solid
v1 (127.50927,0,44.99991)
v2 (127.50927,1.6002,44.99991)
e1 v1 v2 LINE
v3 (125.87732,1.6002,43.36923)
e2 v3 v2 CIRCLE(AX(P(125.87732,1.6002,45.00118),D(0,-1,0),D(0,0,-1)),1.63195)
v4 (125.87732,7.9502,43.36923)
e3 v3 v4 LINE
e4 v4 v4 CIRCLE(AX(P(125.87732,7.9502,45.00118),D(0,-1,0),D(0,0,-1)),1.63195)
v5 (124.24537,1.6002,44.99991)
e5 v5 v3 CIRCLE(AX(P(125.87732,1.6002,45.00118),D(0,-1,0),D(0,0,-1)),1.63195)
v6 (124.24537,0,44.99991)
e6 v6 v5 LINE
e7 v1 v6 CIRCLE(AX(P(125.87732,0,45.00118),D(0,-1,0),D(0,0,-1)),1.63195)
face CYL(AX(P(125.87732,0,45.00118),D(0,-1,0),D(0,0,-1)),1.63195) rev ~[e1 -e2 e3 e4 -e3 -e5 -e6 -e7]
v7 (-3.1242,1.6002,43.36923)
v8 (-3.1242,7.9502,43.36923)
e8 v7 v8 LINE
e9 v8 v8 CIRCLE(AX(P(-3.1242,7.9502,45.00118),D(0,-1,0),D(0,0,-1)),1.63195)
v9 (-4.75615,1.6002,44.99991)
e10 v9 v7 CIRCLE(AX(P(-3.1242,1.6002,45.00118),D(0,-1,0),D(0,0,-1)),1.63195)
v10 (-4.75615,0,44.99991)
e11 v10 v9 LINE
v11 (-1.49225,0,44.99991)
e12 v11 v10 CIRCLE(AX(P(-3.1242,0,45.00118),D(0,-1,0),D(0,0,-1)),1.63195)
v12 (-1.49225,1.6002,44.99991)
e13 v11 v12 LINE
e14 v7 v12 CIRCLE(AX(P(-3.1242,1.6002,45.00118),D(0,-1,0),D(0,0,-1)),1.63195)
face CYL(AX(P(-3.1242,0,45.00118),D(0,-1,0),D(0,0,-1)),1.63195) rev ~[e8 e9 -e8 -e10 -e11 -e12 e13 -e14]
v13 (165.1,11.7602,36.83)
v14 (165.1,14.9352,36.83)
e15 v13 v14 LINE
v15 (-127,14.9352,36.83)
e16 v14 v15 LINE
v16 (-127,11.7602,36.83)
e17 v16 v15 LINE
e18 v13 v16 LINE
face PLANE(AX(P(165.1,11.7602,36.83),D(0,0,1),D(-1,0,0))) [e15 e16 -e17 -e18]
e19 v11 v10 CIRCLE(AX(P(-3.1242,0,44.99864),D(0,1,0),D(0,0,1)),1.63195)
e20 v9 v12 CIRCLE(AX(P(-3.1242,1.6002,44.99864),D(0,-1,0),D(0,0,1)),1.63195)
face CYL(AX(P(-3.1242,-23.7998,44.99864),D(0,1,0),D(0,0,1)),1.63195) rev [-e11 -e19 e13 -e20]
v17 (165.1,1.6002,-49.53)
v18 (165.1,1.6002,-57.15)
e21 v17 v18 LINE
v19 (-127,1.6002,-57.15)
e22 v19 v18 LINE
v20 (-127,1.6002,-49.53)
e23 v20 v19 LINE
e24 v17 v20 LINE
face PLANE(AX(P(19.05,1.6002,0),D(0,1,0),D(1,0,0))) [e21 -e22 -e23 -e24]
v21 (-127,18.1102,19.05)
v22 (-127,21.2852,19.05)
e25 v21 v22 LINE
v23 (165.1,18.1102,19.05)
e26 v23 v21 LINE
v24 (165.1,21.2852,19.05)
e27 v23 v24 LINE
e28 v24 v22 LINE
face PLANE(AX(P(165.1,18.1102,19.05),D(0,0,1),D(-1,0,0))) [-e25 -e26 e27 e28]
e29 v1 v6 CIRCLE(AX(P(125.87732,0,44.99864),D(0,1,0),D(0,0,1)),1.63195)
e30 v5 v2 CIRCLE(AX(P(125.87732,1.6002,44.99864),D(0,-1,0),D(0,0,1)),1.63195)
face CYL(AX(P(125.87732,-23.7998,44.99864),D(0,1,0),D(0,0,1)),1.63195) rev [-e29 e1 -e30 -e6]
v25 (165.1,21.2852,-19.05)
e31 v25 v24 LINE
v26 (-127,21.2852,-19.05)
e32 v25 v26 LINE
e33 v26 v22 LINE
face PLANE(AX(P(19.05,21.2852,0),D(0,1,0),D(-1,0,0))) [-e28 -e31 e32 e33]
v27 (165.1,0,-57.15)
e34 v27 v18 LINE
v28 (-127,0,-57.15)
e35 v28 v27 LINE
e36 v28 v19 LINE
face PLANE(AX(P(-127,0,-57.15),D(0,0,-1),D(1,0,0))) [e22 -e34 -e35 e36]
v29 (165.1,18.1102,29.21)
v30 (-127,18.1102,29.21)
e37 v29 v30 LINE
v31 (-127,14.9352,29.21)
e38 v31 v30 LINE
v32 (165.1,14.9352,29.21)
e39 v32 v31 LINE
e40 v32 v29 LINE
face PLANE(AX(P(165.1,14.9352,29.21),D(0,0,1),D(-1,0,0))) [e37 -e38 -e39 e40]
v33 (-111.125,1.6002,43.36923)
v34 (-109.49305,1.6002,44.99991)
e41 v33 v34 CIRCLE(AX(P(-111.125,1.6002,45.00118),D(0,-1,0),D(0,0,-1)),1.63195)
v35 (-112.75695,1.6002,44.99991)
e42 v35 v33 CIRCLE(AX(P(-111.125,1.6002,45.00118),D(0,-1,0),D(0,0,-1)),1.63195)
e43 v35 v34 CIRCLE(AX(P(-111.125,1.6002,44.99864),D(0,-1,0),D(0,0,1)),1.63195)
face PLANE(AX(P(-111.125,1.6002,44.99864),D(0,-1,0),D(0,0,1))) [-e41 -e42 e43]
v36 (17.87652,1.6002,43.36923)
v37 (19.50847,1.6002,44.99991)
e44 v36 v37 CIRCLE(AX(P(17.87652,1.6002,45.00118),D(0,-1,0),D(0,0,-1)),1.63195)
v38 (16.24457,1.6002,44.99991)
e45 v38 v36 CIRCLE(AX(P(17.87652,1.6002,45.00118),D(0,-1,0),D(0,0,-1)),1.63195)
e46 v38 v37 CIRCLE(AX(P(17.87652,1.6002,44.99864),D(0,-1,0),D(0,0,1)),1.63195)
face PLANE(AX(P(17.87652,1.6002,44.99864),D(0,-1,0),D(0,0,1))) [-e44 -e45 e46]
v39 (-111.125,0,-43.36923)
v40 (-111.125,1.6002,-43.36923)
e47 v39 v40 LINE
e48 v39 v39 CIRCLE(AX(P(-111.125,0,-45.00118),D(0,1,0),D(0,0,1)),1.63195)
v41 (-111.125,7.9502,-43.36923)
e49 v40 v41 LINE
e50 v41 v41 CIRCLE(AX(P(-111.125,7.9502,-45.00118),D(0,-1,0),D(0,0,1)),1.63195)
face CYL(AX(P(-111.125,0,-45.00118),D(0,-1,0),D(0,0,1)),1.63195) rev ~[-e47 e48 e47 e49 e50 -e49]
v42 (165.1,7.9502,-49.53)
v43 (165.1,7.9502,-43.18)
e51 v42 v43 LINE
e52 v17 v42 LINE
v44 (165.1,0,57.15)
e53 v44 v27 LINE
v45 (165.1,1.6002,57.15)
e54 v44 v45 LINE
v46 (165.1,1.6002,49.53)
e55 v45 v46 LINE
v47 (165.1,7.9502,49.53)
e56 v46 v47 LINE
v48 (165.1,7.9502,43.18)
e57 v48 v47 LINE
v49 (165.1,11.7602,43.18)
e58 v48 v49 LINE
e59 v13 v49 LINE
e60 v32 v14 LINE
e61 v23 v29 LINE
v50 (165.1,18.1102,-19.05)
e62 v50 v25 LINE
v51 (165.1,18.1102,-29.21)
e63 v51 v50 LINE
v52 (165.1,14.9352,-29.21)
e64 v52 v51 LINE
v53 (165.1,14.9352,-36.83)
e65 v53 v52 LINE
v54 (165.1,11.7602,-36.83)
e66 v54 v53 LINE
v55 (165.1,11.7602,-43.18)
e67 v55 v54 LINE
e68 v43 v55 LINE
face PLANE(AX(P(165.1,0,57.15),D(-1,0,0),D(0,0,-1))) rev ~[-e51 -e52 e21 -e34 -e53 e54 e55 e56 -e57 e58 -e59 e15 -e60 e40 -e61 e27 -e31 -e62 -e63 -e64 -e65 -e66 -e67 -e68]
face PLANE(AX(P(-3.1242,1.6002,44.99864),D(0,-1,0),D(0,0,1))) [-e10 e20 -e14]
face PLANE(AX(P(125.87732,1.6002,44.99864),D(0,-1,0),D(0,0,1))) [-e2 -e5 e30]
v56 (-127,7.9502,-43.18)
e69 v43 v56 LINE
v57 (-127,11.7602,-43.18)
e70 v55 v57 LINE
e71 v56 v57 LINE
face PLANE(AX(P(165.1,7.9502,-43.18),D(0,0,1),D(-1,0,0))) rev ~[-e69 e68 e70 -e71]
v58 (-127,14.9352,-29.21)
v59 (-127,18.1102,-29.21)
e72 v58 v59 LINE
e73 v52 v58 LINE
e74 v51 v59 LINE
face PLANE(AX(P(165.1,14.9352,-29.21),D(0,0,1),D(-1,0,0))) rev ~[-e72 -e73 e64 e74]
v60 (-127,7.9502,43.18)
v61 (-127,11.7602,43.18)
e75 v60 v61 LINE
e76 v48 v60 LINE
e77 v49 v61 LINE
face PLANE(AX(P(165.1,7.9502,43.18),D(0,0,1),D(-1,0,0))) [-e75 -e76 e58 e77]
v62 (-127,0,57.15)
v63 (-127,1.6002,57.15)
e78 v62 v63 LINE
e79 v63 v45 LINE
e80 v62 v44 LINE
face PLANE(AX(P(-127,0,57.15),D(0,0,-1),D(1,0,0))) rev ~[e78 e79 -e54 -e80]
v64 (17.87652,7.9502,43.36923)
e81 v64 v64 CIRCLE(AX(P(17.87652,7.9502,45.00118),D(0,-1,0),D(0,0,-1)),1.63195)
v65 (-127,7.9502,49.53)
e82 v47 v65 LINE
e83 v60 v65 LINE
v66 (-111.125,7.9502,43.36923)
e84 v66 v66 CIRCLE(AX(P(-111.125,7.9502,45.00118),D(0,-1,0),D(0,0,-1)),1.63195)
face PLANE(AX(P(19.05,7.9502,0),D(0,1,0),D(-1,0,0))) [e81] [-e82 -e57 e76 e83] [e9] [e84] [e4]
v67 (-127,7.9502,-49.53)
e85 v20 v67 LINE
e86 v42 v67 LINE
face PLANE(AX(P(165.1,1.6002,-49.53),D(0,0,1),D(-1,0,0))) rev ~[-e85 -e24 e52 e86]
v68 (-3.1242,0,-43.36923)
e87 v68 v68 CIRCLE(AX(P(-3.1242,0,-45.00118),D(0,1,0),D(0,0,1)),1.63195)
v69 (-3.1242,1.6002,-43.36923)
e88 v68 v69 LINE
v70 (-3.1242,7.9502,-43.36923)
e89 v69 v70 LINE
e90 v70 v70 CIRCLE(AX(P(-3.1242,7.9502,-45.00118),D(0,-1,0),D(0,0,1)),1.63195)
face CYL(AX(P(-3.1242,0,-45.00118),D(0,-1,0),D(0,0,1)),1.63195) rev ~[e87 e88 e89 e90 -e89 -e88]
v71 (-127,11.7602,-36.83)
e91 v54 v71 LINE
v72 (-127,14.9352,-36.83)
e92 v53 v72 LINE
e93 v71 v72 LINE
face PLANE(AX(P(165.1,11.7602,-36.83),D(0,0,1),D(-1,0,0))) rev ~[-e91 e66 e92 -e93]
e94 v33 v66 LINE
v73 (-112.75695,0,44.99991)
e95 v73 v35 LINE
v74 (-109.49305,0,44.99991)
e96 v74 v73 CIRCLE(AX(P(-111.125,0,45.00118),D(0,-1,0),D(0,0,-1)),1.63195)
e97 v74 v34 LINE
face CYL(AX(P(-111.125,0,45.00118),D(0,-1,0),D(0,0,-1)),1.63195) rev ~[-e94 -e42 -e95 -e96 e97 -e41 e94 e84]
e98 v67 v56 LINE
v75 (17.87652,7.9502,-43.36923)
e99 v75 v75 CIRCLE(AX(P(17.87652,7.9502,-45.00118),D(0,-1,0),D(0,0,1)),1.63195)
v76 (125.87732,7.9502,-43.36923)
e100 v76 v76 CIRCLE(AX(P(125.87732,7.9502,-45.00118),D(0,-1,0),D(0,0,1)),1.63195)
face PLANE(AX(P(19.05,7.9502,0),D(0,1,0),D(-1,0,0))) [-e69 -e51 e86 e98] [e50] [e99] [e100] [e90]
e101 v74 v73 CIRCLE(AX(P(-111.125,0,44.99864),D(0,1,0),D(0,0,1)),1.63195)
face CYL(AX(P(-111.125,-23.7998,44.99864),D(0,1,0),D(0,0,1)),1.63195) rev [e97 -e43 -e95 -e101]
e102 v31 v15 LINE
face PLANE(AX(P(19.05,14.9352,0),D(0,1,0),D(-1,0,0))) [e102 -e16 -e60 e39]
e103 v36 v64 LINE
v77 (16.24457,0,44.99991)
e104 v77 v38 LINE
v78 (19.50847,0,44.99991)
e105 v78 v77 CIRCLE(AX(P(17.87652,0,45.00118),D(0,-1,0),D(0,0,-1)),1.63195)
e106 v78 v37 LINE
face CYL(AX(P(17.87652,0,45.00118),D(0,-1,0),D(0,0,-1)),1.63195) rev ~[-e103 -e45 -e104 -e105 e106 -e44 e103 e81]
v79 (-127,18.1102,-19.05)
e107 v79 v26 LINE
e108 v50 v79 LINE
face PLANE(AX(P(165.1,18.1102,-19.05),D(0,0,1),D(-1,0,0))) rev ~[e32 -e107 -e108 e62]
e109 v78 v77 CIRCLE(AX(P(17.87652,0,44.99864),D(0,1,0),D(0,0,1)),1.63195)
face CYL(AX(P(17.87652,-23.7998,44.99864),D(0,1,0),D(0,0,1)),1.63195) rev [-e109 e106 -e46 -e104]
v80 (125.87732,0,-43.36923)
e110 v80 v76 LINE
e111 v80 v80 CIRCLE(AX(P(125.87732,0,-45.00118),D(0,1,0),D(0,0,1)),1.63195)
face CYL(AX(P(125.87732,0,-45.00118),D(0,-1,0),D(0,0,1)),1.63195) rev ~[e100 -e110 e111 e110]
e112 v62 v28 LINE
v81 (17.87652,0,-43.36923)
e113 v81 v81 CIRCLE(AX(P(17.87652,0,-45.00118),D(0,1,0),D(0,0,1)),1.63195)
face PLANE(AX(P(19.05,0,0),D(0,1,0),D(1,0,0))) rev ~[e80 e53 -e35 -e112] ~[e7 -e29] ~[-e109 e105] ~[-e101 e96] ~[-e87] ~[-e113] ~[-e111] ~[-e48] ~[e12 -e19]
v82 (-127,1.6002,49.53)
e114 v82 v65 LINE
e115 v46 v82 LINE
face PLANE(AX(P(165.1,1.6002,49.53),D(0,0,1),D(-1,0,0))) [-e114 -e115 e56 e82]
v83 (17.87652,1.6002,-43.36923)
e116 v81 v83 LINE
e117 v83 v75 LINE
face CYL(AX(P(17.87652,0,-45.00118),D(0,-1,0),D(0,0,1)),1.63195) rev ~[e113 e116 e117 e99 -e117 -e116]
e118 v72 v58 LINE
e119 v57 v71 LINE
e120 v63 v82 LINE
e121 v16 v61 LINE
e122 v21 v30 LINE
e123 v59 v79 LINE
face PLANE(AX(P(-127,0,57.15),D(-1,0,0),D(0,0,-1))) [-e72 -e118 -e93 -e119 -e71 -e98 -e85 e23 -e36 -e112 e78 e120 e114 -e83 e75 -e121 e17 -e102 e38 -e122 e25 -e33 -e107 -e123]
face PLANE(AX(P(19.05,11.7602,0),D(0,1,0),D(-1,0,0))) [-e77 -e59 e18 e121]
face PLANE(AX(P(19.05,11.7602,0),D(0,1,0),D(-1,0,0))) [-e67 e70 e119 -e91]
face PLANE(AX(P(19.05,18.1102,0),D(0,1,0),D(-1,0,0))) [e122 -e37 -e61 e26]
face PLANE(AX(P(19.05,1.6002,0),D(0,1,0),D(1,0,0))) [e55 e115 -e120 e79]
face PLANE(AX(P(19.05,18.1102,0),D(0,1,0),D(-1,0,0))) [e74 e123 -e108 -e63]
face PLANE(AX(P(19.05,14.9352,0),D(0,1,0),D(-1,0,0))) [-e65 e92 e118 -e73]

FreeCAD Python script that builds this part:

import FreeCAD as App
import Part
import Sketcher
from FreeCAD import Vector
Q = App.Units.Quantity


def add_polygon(sketch, points):
    """Adds a closed chain of lines whose ends are joined by coincident constraints."""
    first, n = sketch.GeometryCount, len(points)
    for a, b in zip(points, points[1:] + points[:1]):
        sketch.addGeometry(Part.LineSegment(App.Vector(*a, 0), App.Vector(*b, 0)), False)
    for i in range(n):
        sketch.addConstraint(Sketcher.Constraint("Coincident", first + i, 2, first + (i + 1) % n, 1))

doc = App.newDocument("Part")
body = doc.addObject("PartDesign::Body", "Body")

sketch1 = doc.addObject("Sketcher::SketchObject", "Sketch")
body.addObject(sketch1)
sketch1.AttachmentSupport = (doc.XZ_Plane, [""])
sketch1.MapMode = "FlatFace"
add_polygon(sketch1, [(-127, -57), (-127, 57), (165, 57), (165, -57)])
sketch1.addConstraint(Sketcher.Constraint("Vertical", 0))
sketch1.addConstraint(Sketcher.Constraint("Horizontal", 1))
sketch1.addConstraint(Sketcher.Constraint("Vertical", 2))
sketch1.addConstraint(Sketcher.Constraint("Horizontal", 3))
sketch1.addConstraint(Sketcher.Constraint("DistanceX", 1, 1, 1, 2, Q("11.5 in")))
sketch1.addConstraint(Sketcher.Constraint("DistanceY", 0, 1, 0, 2, Q("4.5 in")))
sketch1.addConstraint(Sketcher.Constraint("DistanceX", 0, 2, -1, 1, Q("5 in")))
sketch1.addConstraint(Sketcher.Constraint("DistanceY", -1, 1, 0, 2, Q("2.25 in")))
pad1 = doc.addObject("PartDesign::Pad", "Pad")
body.addObject(pad1)
pad1.Profile = sketch1
pad1.Length = Q("0.063 in")
pad1.Reversed = True

sketch2 = doc.addObject("Sketcher::SketchObject", "Sketch001")
body.addObject(sketch2)
sketch2.AttachmentSupport = (doc.XZ_Plane, [""])
sketch2.MapMode = "FlatFace"
sketch2.AttachmentOffset = App.Placement(Vector(0, 0, -0.063 * 25.4), App.Rotation())
add_polygon(sketch2, [(165, 50), (165, -50), (-127, -50), (-127, 50)])
sketch2.addConstraint(Sketcher.Constraint("Vertical", 0))
sketch2.addConstraint(Sketcher.Constraint("Horizontal", 1))
sketch2.addConstraint(Sketcher.Constraint("Vertical", 2))
sketch2.addConstraint(Sketcher.Constraint("Horizontal", 3))
sketch2.addConstraint(Sketcher.Constraint("DistanceX", 1, 2, 1, 1, Q("11.5 in")))
sketch2.addConstraint(Sketcher.Constraint("DistanceY", 0, 2, 0, 1, Q("3.9 in")))
sketch2.addConstraint(Sketcher.Constraint("DistanceX", 1, 2, -1, 1, Q("5 in")))
sketch2.addConstraint(Sketcher.Constraint("DistanceY", 0, 2, -1, 1, Q("1.95 in")))
pad2 = doc.addObject("PartDesign::Pad", "Pad001")
body.addObject(pad2)
pad2.Profile = sketch2
pad2.Length = Q("0.25 in")
pad2.Reversed = True

sketch3 = doc.addObject("Sketcher::SketchObject", "Sketch002")
body.addObject(sketch3)
sketch3.AttachmentSupport = (doc.YZ_Plane, [""])
sketch3.MapMode = "FlatFace"
sketch3.AttachmentOffset = App.Placement(Vector(0, 0, 4.9558 * 25.4), App.Rotation())
add_polygon(sketch3, [(-24.8, 45), (1.6, 45), (1.6, 46.6), (-23.8, 46.6)])
sketch3.addGeometry(Part.LineSegment(Vector(1.6, 45, 0), Vector(-24.8, 45, 0)), True)
sketch3.addConstraint(Sketcher.Constraint("Horizontal", 0))
sketch3.addConstraint(Sketcher.Constraint("Vertical", 1))
sketch3.addConstraint(Sketcher.Constraint("Horizontal", 2))
sketch3.addConstraint(Sketcher.Constraint("Horizontal", 4))
sketch3.addConstraint(Sketcher.Constraint("Coincident", 4, 1, 0, 2))
sketch3.addConstraint(Sketcher.Constraint("Equal", 0, 4))
sketch3.addConstraint(Sketcher.Constraint("DistanceX", 2, 2, 2, 1, Q("1 in")))
sketch3.addConstraint(Sketcher.Constraint("Angle", 3, Q("-121 deg")))
sketch3.addConstraint(Sketcher.Constraint("DistanceX", -1, 1, 0, 2, Q("0.063 in")))
sketch3.addConstraint(Sketcher.Constraint("DistanceY", -1, 1, 0, 2, Q("1.7716 in")))
sketch3.addConstraint(Sketcher.Constraint("DistanceY", 1, 1, 1, 2, 1.63195))
groove = doc.addObject("PartDesign::Groove", "Groove")
body.addObject(groove)
groove.Profile = sketch3
groove.ReferenceAxis = (sketch3, ["Axis0"])
groove.Angle = 360
doc.recompute()

linearpattern = doc.addObject("PartDesign::LinearPattern", "LinearPattern")
body.addObject(linearpattern)
linearpattern.Originals = [groove]
linearpattern.Direction = (doc.X_Axis, [""])
linearpattern.Mode = "offset"
linearpattern.Offset = Q("4.252 in")
linearpattern.Occurrences = 2
linearpattern.Reversed = True
body.Tip = linearpattern
doc.recompute()

datumline = doc.addObject("PartDesign::Line", "DatumLine")
body.addObject(datumline)
datumline.Placement = App.Placement(Vector(0, 0, 0), App.Rotation(Vector(0, 0, 1), Vector(-0.768224241, 0, -0.640180845)))
linearpattern2 = doc.addObject("PartDesign::LinearPattern", "LinearPattern001")
body.addObject(linearpattern2)
linearpattern2.Originals = [groove]
linearpattern2.Direction = (datumline, [""])
linearpattern2.Mode = "offset"
linearpattern2.Offset = 140.584994
linearpattern2.Occurrences = 2
body.Tip = linearpattern2
doc.recompute()

linearpattern3 = doc.addObject("PartDesign::LinearPattern", "LinearPattern002")
body.addObject(linearpattern3)
linearpattern3.Originals = [groove]
linearpattern3.Direction = (doc.Z_Axis, [""])
linearpattern3.Mode = "offset"
linearpattern3.Offset = Q("3.5433 in")
linearpattern3.Occurrences = 2
linearpattern3.Reversed = True
body.Tip = linearpattern3
doc.recompute()

datumline2 = doc.addObject("PartDesign::Line", "DatumLine001")
body.addObject(datumline2)
datumline2.Placement = App.Placement(Vector(0, 0, 0), App.Rotation(Vector(0, 0, 1), Vector(-0.934863535, 0, -0.355007284)))
linearpattern4 = doc.addObject("PartDesign::LinearPattern", "LinearPattern003")
body.addObject(linearpattern4)
linearpattern4.Originals = [groove]
linearpattern4.Direction = (datumline2, [""])
linearpattern4.Mode = "offset"
linearpattern4.Offset = 253.515418
linearpattern4.Occurrences = 2
body.Tip = linearpattern4
doc.recompute()

datumline3 = doc.addObject("PartDesign::Line", "DatumLine002")
body.addObject(datumline3)
datumline3.Placement = App.Placement(Vector(0, 0, 0), App.Rotation(Vector(0, 0, 1), Vector(-0.820130655, 0, -0.572176292)))
linearpattern5 = doc.addObject("PartDesign::LinearPattern", "LinearPattern004")
body.addObject(linearpattern5)
linearpattern5.Originals = [groove]
linearpattern5.Direction = (datumline3, [""])
linearpattern5.Mode = "offset"
linearpattern5.Offset = 157.293864
linearpattern5.Occurrences = 2
body.Tip = linearpattern5
doc.recompute()

linearpattern6 = doc.addObject("PartDesign::LinearPattern", "LinearPattern005")
body.addObject(linearpattern6)
linearpattern6.Originals = [groove]
linearpattern6.Direction = (doc.X_Axis, [""])
linearpattern6.Mode = "offset"
linearpattern6.Offset = Q("5.0788 in")
linearpattern6.Occurrences = 2
linearpattern6.Reversed = True
body.Tip = linearpattern6
doc.recompute()

linearpattern7 = doc.addObject("PartDesign::LinearPattern", "LinearPattern006")
body.addObject(linearpattern7)
linearpattern7.Originals = [groove]
linearpattern7.Direction = (doc.X_Axis, [""])
linearpattern7.Mode = "offset"
linearpattern7.Offset = Q("9.3308 in")
linearpattern7.Occurrences = 2
linearpattern7.Reversed = True
body.Tip = linearpattern7

sketch4 = doc.addObject("Sketcher::SketchObject", "Sketch003")
body.addObject(sketch4)
sketch4.AttachmentSupport = (doc.XZ_Plane, [""])
sketch4.MapMode = "FlatFace"
sketch4.AttachmentOffset = App.Placement(Vector(0, 0, -0.313 * 25.4), App.Rotation())
add_polygon(sketch4, [(165, 43), (165, -43), (-127, -43), (-127, 43)])
sketch4.addConstraint(Sketcher.Constraint("Vertical", 0))
sketch4.addConstraint(Sketcher.Constraint("Horizontal", 1))
sketch4.addConstraint(Sketcher.Constraint("Vertical", 2))
sketch4.addConstraint(Sketcher.Constraint("Horizontal", 3))
sketch4.addConstraint(Sketcher.Constraint("DistanceX", 1, 2, 1, 1, Q("11.5 in")))
sketch4.addConstraint(Sketcher.Constraint("DistanceY", 0, 2, 0, 1, Q("3.4 in")))
sketch4.addConstraint(Sketcher.Constraint("DistanceX", 1, 2, -1, 1, Q("5 in")))
sketch4.addConstraint(Sketcher.Constraint("DistanceY", 0, 2, -1, 1, Q("1.7 in")))
pad3 = doc.addObject("PartDesign::Pad", "Pad002")
body.addObject(pad3)
pad3.Profile = sketch4
pad3.Length = Q("0.15 in")
pad3.Reversed = True

sketch5 = doc.addObject("Sketcher::SketchObject", "Sketch004")
body.addObject(sketch5)
sketch5.AttachmentSupport = (doc.XZ_Plane, [""])
sketch5.MapMode = "FlatFace"
sketch5.AttachmentOffset = App.Placement(Vector(0, 0, -0.463 * 25.4), App.Rotation())
add_polygon(sketch5, [(165, 37), (165, -37), (-127, -37), (-127, 37)])
sketch5.addConstraint(Sketcher.Constraint("Vertical", 0))
sketch5.addConstraint(Sketcher.Constraint("Horizontal", 1))
sketch5.addConstraint(Sketcher.Constraint("Vertical", 2))
sketch5.addConstraint(Sketcher.Constraint("Horizontal", 3))
sketch5.addConstraint(Sketcher.Constraint("DistanceX", 1, 2, 1, 1, Q("11.5 in")))
sketch5.addConstraint(Sketcher.Constraint("DistanceY", 0, 2, 0, 1, Q("2.9 in")))
sketch5.addConstraint(Sketcher.Constraint("DistanceX", 1, 2, -1, 1, Q("5 in")))
sketch5.addConstraint(Sketcher.Constraint("DistanceY", 0, 2, -1, 1, Q("1.45 in")))
pad4 = doc.addObject("PartDesign::Pad", "Pad003")
body.addObject(pad4)
pad4.Profile = sketch5
pad4.Length = Q("0.125 in")
pad4.Reversed = True

sketch6 = doc.addObject("Sketcher::SketchObject", "Sketch005")
body.addObject(sketch6)
sketch6.AttachmentSupport = (doc.XZ_Plane, [""])
sketch6.MapMode = "FlatFace"
sketch6.AttachmentOffset = App.Placement(Vector(0, 0, -0.588 * 25.4), App.Rotation())
add_polygon(sketch6, [(165, 29), (165, -29), (-127, -29), (-127, 29)])
sketch6.addConstraint(Sketcher.Constraint("Vertical", 0))
sketch6.addConstraint(Sketcher.Constraint("Horizontal", 1))
sketch6.addConstraint(Sketcher.Constraint("Vertical", 2))
sketch6.addConstraint(Sketcher.Constraint("Horizontal", 3))
sketch6.addConstraint(Sketcher.Constraint("DistanceX", 1, 2, 1, 1, Q("11.5 in")))
sketch6.addConstraint(Sketcher.Constraint("DistanceY", 0, 2, 0, 1, Q("2.3 in")))
sketch6.addConstraint(Sketcher.Constraint("DistanceX", 1, 2, -1, 1, Q("5 in")))
sketch6.addConstraint(Sketcher.Constraint("DistanceY", 0, 2, -1, 1, Q("1.15 in")))
pad5 = doc.addObject("PartDesign::Pad", "Pad004")
body.addObject(pad5)
pad5.Profile = sketch6
pad5.Length = Q("0.125 in")
pad5.Reversed = True

sketch7 = doc.addObject("Sketcher::SketchObject", "Sketch006")
body.addObject(sketch7)
sketch7.AttachmentSupport = (doc.XZ_Plane, [""])
sketch7.MapMode = "FlatFace"
sketch7.AttachmentOffset = App.Placement(Vector(0, 0, -0.713 * 25.4), App.Rotation())
add_polygon(sketch7, [(165, 19), (165, -19), (-127, -19), (-127, 19)])
sketch7.addConstraint(Sketcher.Constraint("Vertical", 0))
sketch7.addConstraint(Sketcher.Constraint("Horizontal", 1))
sketch7.addConstraint(Sketcher.Constraint("Vertical", 2))
sketch7.addConstraint(Sketcher.Constraint("Horizontal", 3))
sketch7.addConstraint(Sketcher.Constraint("DistanceX", 1, 2, 1, 1, Q("11.5 in")))
sketch7.addConstraint(Sketcher.Constraint("DistanceY", 0, 2, 0, 1, Q("1.5 in")))
sketch7.addConstraint(Sketcher.Constraint("DistanceX", 1, 2, -1, 1, Q("5 in")))
sketch7.addConstraint(Sketcher.Constraint("DistanceY", 0, 2, -1, 1, Q("0.75 in")))
pad6 = doc.addObject("PartDesign::Pad", "Pad005")
body.addObject(pad6)
pad6.Profile = sketch7
pad6.Length = Q("0.125 in")
pad6.Reversed = True

sketch8 = doc.addObject("Sketcher::SketchObject", "Sketch007")
body.addObject(sketch8)
sketch8.AttachmentSupport = (doc.XZ_Plane, [""])
sketch8.MapMode = "FlatFace"
sketch8.addGeometry(Part.Circle(Vector(125.9, -45, 0), Vector(0, 0, 1), 1.6), False)
sketch8.addGeometry(Part.Circle(Vector(17.9, -45, 0), Vector(0, 0, 1), 1.6), False)
sketch8.addGeometry(Part.Circle(Vector(-3.1, -45, 0), Vector(0, 0, 1), 1.6), False)
sketch8.addGeometry(Part.Circle(Vector(-111.1, -45, 0), Vector(0, 0, 1), 1.6), False)
sketch8.addGeometry(Part.Circle(Vector(-111.1, 45, 0), Vector(0, 0, 1), 1.6), False)
sketch8.addGeometry(Part.Circle(Vector(-3.1, 45, 0), Vector(0, 0, 1), 1.6), False)
sketch8.addGeometry(Part.Circle(Vector(17.9, 45, 0), Vector(0, 0, 1), 1.6), False)
sketch8.addGeometry(Part.Circle(Vector(125.9, 45, 0), Vector(0, 0, 1), 1.6), False)
sketch8.addConstraint(Sketcher.Constraint("Equal", 0, 1))
sketch8.addConstraint(Sketcher.Constraint("Equal", 1, 2))
sketch8.addConstraint(Sketcher.Constraint("Equal", 2, 3))
sketch8.addConstraint(Sketcher.Constraint("Equal", 3, 4))
sketch8.addConstraint(Sketcher.Constraint("Equal", 4, 5))
sketch8.addConstraint(Sketcher.Constraint("Equal", 5, 6))
sketch8.addConstraint(Sketcher.Constraint("Equal", 6, 7))
sketch8.addConstraint(Sketcher.Constraint("Symmetric", 3, 3, 4, 3, -1))
sketch8.addConstraint(Sketcher.Constraint("Symmetric", 2, 3, 5, 3, -1))
sketch8.addConstraint(Sketcher.Constraint("Symmetric", 1, 3, 6, 3, -1))
sketch8.addConstraint(Sketcher.Constraint("Symmetric", 0, 3, 7, 3, -1))
sketch8.addConstraint(Sketcher.Constraint("Horizontal", 0, 3, 1, 3))
sketch8.addConstraint(Sketcher.Constraint("Horizontal", 1, 3, 2, 3))
sketch8.addConstraint(Sketcher.Constraint("Horizontal", 2, 3, 3, 3))
sketch8.addConstraint(Sketcher.Constraint("Diameter", 0, Q("0.1285 in")))
sketch8.addConstraint(Sketcher.Constraint("DistanceX", 2, 3, -1, 1, Q("0.123 in")))
sketch8.addConstraint(Sketcher.Constraint("DistanceX", 3, 3, -1, 1, Q("4.375 in")))
sketch8.addConstraint(Sketcher.Constraint("DistanceX", 1, 3, 0, 3, Q("4.252 in")))
sketch8.addConstraint(Sketcher.Constraint("DistanceX", -1, 1, 0, 3, Q("4.9558 in")))
sketch8.addConstraint(Sketcher.Constraint("DistanceY", 0, 3, -1, 1, Q("1.7717 in")))
pocket1 = doc.addObject("PartDesign::Pocket", "Pocket")
body.addObject(pocket1)
pocket1.Profile = sketch8
pocket1.Type = "ThroughAll"

doc.recompute()
